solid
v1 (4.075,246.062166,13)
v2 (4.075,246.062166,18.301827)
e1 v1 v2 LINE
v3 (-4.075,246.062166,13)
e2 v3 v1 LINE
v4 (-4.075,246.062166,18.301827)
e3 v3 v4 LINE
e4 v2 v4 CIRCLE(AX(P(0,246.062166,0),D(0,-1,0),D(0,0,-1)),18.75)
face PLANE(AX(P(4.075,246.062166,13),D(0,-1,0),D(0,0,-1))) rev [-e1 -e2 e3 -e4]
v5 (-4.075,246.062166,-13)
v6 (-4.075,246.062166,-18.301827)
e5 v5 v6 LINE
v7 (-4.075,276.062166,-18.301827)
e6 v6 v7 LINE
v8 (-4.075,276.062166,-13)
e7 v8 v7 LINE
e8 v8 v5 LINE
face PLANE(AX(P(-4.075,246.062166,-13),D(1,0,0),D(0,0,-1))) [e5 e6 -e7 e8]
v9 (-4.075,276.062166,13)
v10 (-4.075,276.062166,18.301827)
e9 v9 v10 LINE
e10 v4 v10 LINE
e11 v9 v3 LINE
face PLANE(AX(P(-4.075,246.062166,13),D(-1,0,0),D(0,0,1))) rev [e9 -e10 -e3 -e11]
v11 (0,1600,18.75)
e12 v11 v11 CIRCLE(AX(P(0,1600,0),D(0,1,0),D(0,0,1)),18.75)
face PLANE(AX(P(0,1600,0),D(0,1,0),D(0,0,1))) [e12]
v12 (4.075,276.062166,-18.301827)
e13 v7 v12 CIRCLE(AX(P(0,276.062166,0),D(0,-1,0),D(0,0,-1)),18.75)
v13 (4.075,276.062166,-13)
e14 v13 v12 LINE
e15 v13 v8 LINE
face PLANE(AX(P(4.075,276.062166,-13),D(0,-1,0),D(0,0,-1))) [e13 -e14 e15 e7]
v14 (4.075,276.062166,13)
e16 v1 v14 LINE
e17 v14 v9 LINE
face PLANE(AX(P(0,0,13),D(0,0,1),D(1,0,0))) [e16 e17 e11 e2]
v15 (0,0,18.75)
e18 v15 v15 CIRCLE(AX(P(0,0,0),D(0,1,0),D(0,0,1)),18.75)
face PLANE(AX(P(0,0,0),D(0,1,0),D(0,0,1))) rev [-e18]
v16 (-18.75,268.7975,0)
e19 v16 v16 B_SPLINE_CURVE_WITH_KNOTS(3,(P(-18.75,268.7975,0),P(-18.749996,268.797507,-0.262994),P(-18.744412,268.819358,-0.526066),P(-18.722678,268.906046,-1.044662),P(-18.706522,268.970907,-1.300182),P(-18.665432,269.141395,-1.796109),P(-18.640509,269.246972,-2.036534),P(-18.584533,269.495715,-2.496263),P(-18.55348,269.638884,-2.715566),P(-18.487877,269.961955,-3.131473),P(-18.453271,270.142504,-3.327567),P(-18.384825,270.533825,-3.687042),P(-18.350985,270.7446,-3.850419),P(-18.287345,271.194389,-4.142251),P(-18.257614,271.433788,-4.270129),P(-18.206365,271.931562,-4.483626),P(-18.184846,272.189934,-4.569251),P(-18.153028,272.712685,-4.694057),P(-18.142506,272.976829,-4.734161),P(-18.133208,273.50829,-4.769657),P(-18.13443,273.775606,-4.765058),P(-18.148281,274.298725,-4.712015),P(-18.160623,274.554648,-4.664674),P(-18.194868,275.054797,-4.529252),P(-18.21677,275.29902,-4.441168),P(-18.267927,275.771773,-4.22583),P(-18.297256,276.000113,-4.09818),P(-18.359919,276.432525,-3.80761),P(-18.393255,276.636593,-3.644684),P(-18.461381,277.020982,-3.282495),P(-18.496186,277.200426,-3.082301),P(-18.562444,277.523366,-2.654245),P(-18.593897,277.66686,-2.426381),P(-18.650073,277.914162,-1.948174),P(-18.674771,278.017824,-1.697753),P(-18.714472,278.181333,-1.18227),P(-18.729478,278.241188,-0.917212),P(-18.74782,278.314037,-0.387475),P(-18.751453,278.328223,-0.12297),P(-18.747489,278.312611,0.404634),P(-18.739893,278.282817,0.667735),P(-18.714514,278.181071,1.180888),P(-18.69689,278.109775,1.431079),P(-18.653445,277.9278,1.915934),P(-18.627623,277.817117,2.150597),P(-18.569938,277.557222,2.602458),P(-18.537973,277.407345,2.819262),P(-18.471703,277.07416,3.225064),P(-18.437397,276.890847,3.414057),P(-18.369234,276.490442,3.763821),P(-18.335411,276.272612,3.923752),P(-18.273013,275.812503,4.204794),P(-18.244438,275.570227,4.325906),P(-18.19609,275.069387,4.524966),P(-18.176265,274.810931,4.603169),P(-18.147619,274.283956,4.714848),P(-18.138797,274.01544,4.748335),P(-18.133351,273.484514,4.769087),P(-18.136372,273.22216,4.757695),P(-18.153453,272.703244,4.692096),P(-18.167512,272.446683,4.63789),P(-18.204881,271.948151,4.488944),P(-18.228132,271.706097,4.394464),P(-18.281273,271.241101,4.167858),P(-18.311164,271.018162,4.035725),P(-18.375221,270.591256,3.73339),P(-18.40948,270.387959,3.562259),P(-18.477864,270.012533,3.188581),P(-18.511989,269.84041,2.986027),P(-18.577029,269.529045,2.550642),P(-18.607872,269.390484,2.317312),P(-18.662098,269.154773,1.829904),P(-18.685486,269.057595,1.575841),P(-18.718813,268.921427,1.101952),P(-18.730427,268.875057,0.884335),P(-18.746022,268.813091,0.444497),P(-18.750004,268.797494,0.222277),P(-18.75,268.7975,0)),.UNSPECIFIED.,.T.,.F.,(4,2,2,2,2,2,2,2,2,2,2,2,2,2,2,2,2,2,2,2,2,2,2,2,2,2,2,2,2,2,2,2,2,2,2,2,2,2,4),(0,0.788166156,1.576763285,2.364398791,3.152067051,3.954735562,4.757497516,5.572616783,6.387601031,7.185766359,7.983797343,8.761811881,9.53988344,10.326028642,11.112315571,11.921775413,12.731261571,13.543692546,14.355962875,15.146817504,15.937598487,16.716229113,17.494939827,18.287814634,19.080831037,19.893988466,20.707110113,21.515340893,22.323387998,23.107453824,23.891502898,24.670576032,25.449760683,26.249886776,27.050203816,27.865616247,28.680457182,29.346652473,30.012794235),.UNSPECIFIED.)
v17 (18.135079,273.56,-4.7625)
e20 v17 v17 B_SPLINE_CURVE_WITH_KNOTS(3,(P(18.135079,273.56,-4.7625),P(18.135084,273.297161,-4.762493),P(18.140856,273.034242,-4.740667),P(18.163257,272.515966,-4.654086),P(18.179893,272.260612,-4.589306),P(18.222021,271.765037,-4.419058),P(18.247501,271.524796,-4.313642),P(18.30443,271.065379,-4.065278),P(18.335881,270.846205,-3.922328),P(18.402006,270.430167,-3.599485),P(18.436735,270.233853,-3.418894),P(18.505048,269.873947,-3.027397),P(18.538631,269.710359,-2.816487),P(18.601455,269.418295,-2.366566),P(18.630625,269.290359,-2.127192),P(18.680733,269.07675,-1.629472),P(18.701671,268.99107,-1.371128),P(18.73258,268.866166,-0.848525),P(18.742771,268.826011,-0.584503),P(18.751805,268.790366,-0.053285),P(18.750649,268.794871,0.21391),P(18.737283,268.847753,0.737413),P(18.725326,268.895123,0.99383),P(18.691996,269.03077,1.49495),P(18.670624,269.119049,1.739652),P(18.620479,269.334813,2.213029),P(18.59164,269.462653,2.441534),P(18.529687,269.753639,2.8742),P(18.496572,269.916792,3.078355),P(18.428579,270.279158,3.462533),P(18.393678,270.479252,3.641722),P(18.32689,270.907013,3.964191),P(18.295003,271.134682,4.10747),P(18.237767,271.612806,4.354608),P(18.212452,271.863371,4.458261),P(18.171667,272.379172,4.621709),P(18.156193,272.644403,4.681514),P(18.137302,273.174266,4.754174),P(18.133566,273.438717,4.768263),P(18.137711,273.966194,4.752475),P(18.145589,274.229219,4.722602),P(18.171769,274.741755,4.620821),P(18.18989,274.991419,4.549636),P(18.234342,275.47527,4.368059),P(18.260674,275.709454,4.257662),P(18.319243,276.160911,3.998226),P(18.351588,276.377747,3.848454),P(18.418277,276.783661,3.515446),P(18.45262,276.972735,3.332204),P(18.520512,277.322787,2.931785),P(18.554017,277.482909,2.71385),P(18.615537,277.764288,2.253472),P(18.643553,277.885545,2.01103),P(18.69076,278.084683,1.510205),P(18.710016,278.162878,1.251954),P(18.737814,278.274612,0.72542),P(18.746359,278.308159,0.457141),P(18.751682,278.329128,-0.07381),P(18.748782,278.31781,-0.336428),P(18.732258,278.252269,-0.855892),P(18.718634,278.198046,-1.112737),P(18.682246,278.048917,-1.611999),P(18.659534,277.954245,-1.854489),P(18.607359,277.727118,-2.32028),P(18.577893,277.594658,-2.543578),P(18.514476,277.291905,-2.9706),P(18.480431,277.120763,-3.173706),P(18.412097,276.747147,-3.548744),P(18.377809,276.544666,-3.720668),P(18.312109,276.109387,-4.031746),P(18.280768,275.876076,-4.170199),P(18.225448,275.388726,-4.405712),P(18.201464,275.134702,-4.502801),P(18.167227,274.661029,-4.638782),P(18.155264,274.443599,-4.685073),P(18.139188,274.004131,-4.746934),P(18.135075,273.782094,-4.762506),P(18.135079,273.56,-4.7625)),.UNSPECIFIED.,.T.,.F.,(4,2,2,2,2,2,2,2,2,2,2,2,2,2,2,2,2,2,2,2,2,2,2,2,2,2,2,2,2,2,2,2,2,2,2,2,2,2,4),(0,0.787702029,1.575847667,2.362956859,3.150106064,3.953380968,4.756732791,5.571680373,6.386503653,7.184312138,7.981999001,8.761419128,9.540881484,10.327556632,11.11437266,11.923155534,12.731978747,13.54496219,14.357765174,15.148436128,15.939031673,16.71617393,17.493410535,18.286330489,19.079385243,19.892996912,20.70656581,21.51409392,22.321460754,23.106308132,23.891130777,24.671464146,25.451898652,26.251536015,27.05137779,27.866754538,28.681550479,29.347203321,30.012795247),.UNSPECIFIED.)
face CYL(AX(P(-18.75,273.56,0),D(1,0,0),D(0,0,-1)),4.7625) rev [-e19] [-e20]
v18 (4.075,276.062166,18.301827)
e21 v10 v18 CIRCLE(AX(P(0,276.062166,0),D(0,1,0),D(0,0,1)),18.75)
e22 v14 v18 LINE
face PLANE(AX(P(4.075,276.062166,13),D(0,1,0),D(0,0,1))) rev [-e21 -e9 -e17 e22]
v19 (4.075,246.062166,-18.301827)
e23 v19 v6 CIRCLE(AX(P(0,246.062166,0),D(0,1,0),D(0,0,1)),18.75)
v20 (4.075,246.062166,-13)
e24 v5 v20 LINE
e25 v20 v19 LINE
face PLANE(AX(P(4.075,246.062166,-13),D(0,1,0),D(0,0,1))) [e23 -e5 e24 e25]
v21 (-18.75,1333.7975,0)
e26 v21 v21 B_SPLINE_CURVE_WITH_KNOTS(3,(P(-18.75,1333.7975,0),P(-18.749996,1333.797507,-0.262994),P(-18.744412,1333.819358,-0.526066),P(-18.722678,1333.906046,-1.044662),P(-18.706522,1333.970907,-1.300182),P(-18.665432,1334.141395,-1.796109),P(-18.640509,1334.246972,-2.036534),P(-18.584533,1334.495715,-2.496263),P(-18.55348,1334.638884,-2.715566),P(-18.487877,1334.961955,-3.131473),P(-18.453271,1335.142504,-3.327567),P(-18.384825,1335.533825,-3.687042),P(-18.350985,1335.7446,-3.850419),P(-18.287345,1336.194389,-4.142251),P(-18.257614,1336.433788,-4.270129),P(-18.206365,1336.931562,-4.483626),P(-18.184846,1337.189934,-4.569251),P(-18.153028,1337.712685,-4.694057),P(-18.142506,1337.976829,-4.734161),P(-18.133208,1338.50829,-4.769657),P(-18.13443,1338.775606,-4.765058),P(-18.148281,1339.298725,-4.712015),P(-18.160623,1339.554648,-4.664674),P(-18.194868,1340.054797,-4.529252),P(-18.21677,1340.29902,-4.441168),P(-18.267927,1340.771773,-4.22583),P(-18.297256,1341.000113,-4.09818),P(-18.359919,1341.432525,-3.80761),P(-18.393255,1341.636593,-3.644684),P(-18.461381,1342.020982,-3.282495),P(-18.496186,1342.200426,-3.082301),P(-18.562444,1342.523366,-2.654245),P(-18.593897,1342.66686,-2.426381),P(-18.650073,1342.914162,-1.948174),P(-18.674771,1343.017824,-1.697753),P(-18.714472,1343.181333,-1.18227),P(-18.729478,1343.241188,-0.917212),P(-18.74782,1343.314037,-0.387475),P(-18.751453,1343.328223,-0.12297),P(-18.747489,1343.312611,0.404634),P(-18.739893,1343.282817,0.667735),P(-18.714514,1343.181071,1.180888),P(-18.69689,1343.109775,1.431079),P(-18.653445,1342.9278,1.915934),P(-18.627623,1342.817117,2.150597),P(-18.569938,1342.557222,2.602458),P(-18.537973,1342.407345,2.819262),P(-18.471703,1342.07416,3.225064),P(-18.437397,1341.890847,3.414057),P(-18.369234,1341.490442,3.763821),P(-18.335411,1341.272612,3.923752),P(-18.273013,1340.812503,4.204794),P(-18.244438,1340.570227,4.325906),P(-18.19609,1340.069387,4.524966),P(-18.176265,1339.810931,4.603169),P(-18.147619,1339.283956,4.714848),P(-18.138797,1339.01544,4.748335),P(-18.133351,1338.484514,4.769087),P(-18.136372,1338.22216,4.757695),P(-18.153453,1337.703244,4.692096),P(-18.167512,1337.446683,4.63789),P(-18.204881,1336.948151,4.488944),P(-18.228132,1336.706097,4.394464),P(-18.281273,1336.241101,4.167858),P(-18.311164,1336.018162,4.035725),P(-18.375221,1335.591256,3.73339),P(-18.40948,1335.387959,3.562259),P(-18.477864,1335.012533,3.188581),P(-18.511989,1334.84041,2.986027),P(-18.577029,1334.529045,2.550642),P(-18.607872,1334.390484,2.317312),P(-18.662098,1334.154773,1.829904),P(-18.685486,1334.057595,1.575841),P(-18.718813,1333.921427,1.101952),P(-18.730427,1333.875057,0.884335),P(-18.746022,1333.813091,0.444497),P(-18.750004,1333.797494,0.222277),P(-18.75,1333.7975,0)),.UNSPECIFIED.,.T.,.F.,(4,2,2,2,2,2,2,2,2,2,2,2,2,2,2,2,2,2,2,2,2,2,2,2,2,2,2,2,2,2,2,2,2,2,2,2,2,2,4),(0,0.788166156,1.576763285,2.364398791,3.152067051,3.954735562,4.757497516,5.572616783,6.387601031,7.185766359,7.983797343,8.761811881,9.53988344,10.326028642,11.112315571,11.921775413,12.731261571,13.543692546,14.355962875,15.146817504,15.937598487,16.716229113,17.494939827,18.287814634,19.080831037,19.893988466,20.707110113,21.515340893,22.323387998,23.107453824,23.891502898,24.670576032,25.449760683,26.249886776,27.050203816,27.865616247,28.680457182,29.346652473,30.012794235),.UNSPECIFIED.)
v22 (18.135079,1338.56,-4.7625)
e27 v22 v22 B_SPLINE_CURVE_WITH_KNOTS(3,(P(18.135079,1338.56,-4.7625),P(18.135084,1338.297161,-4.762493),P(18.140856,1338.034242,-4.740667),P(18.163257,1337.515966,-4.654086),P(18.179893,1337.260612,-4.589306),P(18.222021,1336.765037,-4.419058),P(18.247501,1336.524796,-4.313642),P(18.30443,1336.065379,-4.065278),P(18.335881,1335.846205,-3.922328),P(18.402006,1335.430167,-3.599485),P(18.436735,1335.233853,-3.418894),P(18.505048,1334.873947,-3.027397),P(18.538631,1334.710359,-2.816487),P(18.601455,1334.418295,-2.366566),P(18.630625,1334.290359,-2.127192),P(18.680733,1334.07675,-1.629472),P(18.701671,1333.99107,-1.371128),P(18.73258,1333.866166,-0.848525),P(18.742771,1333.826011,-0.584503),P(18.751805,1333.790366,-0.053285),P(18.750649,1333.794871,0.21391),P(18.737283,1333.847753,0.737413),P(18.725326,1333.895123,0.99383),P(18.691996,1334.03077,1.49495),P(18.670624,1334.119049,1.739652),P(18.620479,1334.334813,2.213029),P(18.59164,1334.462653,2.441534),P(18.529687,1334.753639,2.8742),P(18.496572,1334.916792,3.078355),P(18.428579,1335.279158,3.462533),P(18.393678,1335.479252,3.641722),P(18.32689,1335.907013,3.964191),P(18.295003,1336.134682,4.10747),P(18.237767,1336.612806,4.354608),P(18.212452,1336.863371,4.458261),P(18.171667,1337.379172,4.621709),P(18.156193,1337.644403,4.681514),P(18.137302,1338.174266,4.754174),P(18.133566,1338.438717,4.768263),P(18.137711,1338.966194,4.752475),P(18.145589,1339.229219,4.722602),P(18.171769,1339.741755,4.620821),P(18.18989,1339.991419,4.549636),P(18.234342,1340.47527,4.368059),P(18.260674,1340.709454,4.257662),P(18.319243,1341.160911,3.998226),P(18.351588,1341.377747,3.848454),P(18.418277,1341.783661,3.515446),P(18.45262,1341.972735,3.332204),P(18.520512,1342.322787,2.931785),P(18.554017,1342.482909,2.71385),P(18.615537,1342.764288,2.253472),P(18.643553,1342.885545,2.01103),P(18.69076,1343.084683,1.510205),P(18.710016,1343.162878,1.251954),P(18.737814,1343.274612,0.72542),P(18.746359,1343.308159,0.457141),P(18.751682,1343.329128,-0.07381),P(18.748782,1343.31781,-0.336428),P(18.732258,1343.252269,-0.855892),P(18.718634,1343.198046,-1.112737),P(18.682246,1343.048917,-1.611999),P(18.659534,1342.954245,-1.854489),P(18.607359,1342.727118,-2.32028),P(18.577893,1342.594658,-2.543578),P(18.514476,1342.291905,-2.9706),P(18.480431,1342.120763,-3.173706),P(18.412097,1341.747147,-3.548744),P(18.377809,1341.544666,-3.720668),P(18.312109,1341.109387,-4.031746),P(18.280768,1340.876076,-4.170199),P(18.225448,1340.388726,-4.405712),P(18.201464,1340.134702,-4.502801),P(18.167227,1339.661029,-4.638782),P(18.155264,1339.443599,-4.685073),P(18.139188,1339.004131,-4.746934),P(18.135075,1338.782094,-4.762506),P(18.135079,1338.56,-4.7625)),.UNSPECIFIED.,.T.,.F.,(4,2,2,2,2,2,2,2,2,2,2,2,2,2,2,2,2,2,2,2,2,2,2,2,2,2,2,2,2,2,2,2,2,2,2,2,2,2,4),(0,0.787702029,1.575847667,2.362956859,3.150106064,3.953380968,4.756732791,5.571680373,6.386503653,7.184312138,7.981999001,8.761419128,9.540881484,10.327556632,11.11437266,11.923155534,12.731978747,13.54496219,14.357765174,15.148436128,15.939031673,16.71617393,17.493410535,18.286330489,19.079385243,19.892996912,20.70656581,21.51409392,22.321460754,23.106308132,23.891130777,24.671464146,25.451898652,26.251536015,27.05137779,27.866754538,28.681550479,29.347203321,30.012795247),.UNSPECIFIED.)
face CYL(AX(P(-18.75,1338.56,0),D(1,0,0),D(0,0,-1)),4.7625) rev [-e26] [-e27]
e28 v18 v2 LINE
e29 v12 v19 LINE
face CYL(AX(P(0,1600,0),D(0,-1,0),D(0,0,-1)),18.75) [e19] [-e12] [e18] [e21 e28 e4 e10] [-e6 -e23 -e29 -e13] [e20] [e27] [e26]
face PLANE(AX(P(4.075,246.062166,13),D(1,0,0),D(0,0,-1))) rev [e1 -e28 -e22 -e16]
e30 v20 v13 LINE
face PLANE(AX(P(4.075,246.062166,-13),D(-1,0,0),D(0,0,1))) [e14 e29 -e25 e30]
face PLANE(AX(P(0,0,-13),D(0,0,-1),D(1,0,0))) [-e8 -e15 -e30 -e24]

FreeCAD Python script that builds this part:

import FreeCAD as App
import Part
import Sketcher


def add_polygon(sketch, points):
    """Adds a closed chain of lines whose ends are joined by coincident constraints."""
    first, n = sketch.GeometryCount, len(points)
    for a, b in zip(points, points[1:] + points[:1]):
        sketch.addGeometry(Part.LineSegment(App.Vector(*a, 0), App.Vector(*b, 0)), False)
    for i in range(n):
        sketch.addConstraint(Sketcher.Constraint("Coincident", first + i, 2, first + (i + 1) % n, 1))

doc = App.newDocument("Part")
params = doc.addObject("Spreadsheet::Sheet", "Params")
for row, (alias, value) in enumerate([
    ("sketch1_diameter", "37.5 mm"),
    ("pad1_length", "1600 mm"),
    ("sketch2_height", "30 mm"),
    ("sketch2_width", "8.15 mm"),
    ("pocket1_length", "5.75 mm"),
], start=1):
    params.set(f"A{row}", alias)
    params.set(f"B{row}", "=" + value)
    params.setAlias(f"B{row}", alias)

body = doc.addObject("PartDesign::Body", "Body")

# Sketch on XZ plane
sketch1 = body.newObject("Sketcher::SketchObject", "Sketch")
sketch1.AttachmentSupport = (doc.getObject("XZ_Plane"), [""])
sketch1.MapMode = "FlatFace"
sketch1.addGeometry(Part.Circle(App.Vector(0, 0, 0), App.Vector(0, 0, 1), 18.75), False)
sketch1.addConstraint([
    Sketcher.Constraint("Coincident", 0, 3, -1, 1),
    Sketcher.Constraint("Diameter", 0, 37.5),
])
sketch1.setExpression("Constraints[1]", "Params.sketch1_diameter")
pad1 = body.newObject("PartDesign::Pad", "Pad")
pad1.Profile = sketch1
pad1.setExpression("Length", "Params.pad1_length")
pad1.Reversed = True

# Sketch on XY plane
sketch2 = body.newObject("Sketcher::SketchObject", "Sketch001")
sketch2.AttachmentSupport = (doc.getObject("XY_Plane"), [""])
sketch2.MapMode = "FlatFace"
sketch2.AttachmentOffset = App.Placement(App.Vector(0, 0, 18.75), App.Rotation())
add_polygon(sketch2, [(-4.075, 276.062166), (-4.075, 246.062166), (4.075, 246.062166), (4.075, 276.062166)])  # lines 0-3
sketch2.addConstraint([
    Sketcher.Constraint("Vertical", 0),
    Sketcher.Constraint("Horizontal", 1),
    Sketcher.Constraint("Vertical", 2),
    Sketcher.Constraint("Horizontal", 3),
    Sketcher.Constraint("DistanceY", 0, 2, 0, 1, 30.0),
    Sketcher.Constraint("DistanceX", 1, 1, 1, 2, 8.15),
    Sketcher.Constraint("DistanceX", 0, 2, -1, 1, 4.075),
    Sketcher.Constraint("DistanceY", -1, 1, 0, 2, 246.062166),
])
sketch2.setExpression("Constraints[8]", "Params.sketch2_height")
sketch2.setExpression("Constraints[9]", "Params.sketch2_width")
pocket1 = body.newObject("PartDesign::Pocket", "Pocket")
pocket1.Profile = sketch2
pocket1.setExpression("Length", "Params.pocket1_length")
doc.recompute()

mirrored = body.newObject("PartDesign::Mirrored", "Mirrored")
mirrored.Originals = [pocket1]
mirrored.MirrorPlane = (doc.getObject("XY_Plane"), [""])
body.Tip = mirrored

# Sketch on YZ plane
sketch3 = body.newObject("Sketcher::SketchObject", "Sketch002")
sketch3.AttachmentSupport = (doc.getObject("YZ_Plane"), [""])
sketch3.MapMode = "FlatFace"
sketch3.addGeometry(Part.Circle(App.Vector(273.56, 0, 0), App.Vector(0, 0, 1), 4.7625), False)
sketch3.addConstraint([
    Sketcher.Constraint("PointOnObject", 0, 3, -1),
    Sketcher.Constraint("Diameter", 0, 9.525),
    Sketcher.Constraint("DistanceX", -1, 1, 0, 3, 273.56),
])
pocket2 = body.newObject("PartDesign::Pocket", "Pocket001")
pocket2.Profile = sketch3
pocket2.Type = "ThroughAll"
pocket2.Midplane = True

# Sketch on YZ plane
sketch4 = body.newObject("Sketcher::SketchObject", "Sketch003")
sketch4.AttachmentSupport = (doc.getObject("YZ_Plane"), [""])
sketch4.MapMode = "FlatFace"
sketch4.addGeometry(Part.Circle(App.Vector(1338.56, 0, 0), App.Vector(0, 0, 1), 4.7625), False)
sketch4.addConstraint([
    Sketcher.Constraint("PointOnObject", 0, 3, -1),
    Sketcher.Constraint("Diameter", 0, 9.525),
    Sketcher.Constraint("DistanceX", -1, 1, 0, 3, 1338.56),
])
pocket3 = body.newObject("PartDesign::Pocket", "Pocket002")
pocket3.Profile = sketch4
pocket3.Type = "ThroughAll"
pocket3.Midplane = True

doc.recompute()
